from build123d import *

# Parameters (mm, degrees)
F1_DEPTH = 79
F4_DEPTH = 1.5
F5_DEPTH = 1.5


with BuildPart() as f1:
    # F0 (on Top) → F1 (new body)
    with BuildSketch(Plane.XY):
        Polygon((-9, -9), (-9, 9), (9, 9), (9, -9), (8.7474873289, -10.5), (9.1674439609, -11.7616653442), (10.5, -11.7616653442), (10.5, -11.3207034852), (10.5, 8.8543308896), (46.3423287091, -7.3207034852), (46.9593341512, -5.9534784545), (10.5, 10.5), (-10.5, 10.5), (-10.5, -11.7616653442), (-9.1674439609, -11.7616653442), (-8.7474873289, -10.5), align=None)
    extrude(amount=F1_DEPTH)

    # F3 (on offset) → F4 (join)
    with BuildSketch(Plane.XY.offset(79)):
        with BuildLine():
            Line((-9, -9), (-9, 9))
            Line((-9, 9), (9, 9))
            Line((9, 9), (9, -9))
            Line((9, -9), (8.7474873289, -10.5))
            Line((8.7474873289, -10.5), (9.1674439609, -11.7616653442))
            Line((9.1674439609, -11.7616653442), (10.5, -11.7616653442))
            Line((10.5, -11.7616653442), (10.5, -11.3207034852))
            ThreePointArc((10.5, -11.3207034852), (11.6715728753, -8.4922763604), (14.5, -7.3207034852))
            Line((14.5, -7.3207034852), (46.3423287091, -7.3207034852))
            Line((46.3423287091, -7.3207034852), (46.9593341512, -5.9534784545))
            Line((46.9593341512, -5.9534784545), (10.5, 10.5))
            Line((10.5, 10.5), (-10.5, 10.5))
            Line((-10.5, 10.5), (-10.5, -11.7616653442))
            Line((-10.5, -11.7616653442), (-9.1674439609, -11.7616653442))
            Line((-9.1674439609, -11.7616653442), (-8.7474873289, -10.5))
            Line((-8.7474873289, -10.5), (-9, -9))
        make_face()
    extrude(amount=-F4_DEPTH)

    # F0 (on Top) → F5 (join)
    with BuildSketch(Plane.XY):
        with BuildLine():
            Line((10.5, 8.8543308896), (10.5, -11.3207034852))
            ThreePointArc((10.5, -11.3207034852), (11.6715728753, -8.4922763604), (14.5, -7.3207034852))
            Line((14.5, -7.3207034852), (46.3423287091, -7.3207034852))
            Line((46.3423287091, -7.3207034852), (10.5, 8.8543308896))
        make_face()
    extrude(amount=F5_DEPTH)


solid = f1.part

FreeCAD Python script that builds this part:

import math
import FreeCAD as App
import Part
import Sketcher

doc = App.newDocument("Part")
params = doc.addObject("Spreadsheet::Sheet", "Params")
for row, (alias, value) in enumerate([
    ("sketch1_width", "18 mm"),
    ("sketch1_width2", "21 mm"),
    ("sketch1_length", "40 mm"),
    ("sketch1_length2", "1.5 mm"),
    ("pad1_length", "79 mm"),
    ("sketch2_radius", "4 mm"),
    ("sketch2_width", "18 mm"),
    ("sketch2_width2", "21 mm"),
    ("sketch2_length", "40 mm"),
    ("sketch2_length2", "1.5 mm"),
    ("pad2_length", "1.5 mm"),
    ("sketch3_radius", "4 mm"),
    ("pad3_length", "1.5 mm"),
], start=1):
    params.set(f"A{row}", alias)
    params.set(f"B{row}", "=" + value)
    params.setAlias(f"B{row}", alias)

body = doc.addObject("PartDesign::Body", "Body")

# Sketch on XY plane
sketch1 = doc.addObject("Sketcher::SketchObject", "Sketch")
body.addObject(sketch1)
sketch1.AttachmentSupport = (doc.XY_Plane, [""])
sketch1.MapMode = "FlatFace"
sketch1.addGeometry([
    Part.LineSegment(App.Vector(-9, -9, 0), App.Vector(-9, 9, 0)),  # 0
    Part.LineSegment(App.Vector(-9, 9, 0), App.Vector(9, 9, 0)),  # 1
    Part.LineSegment(App.Vector(9, 9, 0), App.Vector(9, -9, 0)),  # 2
    Part.LineSegment(App.Vector(9, -9, 0), App.Vector(8.747487, -10.5, 0)),  # 3
    Part.LineSegment(App.Vector(8.747487, -10.5, 0), App.Vector(9.167444, -11.761665, 0)),  # 4
    Part.LineSegment(App.Vector(9.167444, -11.761665, 0), App.Vector(10.5, -11.761665, 0)),  # 5
    Part.LineSegment(App.Vector(10.5, -11.761665, 0), App.Vector(10.5, 8.854331, 0)),  # 6
    Part.LineSegment(App.Vector(10.5, 8.854331, 0), App.Vector(46.342329, -7.320703, 0)),  # 7
    Part.LineSegment(App.Vector(46.342329, -7.320703, 0), App.Vector(46.959334, -5.953478, 0)),  # 8
    Part.LineSegment(App.Vector(46.959334, -5.953478, 0), App.Vector(10.5, 10.5, 0)),  # 9
    Part.LineSegment(App.Vector(10.5, 10.5, 0), App.Vector(-10.5, 10.5, 0)),  # 10
    Part.LineSegment(App.Vector(-10.5, 10.5, 0), App.Vector(-10.5, -11.761665, 0)),  # 11
    Part.LineSegment(App.Vector(-10.5, -11.761665, 0), App.Vector(-9.167444, -11.761665, 0)),  # 12
    Part.LineSegment(App.Vector(-9.167444, -11.761665, 0), App.Vector(-8.747487, -10.5, 0)),  # 13
    Part.LineSegment(App.Vector(-8.747487, -10.5, 0), App.Vector(-9, -9, 0)),  # 14
], False)
sketch1.addConstraint([
    Sketcher.Constraint("Coincident", 0, 2, 1, 1),
    Sketcher.Constraint("Coincident", 1, 2, 2, 1),
    Sketcher.Constraint("Coincident", 2, 2, 3, 1),
    Sketcher.Constraint("Coincident", 3, 2, 4, 1),
    Sketcher.Constraint("Coincident", 4, 2, 5, 1),
    Sketcher.Constraint("Coincident", 5, 2, 6, 1),
    Sketcher.Constraint("Coincident", 6, 2, 7, 1),
    Sketcher.Constraint("Coincident", 7, 2, 8, 1),
    Sketcher.Constraint("Coincident", 8, 2, 9, 1),
    Sketcher.Constraint("Coincident", 9, 2, 10, 1),
    Sketcher.Constraint("Coincident", 10, 2, 11, 1),
    Sketcher.Constraint("Coincident", 11, 2, 12, 1),
    Sketcher.Constraint("Coincident", 12, 2, 13, 1),
    Sketcher.Constraint("Coincident", 13, 2, 14, 1),
    Sketcher.Constraint("Coincident", 14, 2, 0, 1),
    Sketcher.Constraint("Vertical", 0),
    Sketcher.Constraint("Horizontal", 1),
    Sketcher.Constraint("Vertical", 2),
    Sketcher.Constraint("Horizontal", 5),
    Sketcher.Constraint("Vertical", 6),
    Sketcher.Constraint("Horizontal", 10),
    Sketcher.Constraint("Vertical", 11),
    Sketcher.Constraint("Horizontal", 12),
    Sketcher.Constraint("Symmetric", 0, 2, 2, 2, -1, 1),
    Sketcher.Constraint("Symmetric", 5, 2, 11, 2, -2),
    Sketcher.Constraint("Symmetric", 3, 2, 13, 2, -2),
    Sketcher.Constraint("Perpendicular", 7, 8),
    Sketcher.Constraint("Perpendicular", 8, 9),
    Sketcher.Constraint("Horizontal", 2, 2, 14, 2),
    Sketcher.Constraint("Vertical", 6, 2, 9, 2),
    Sketcher.Constraint("Equal", 5, 12),
    Sketcher.Constraint("Equal", 1, 0),
    Sketcher.Constraint("DistanceX", 1, 1, 1, 2, 18.0),
    Sketcher.Constraint("DistanceX", 10, 2, 10, 1, 21.0),
    Sketcher.Constraint("Distance", 9, 40.0),
    Sketcher.Constraint("DistanceY", 3, 2, 9, 2, 21.0),
    Sketcher.Constraint("Distance", 8, 1.5),
    Sketcher.Constraint("DistanceY", 3, 2, -1, 1, 10.5),
    Sketcher.Constraint("DistanceX", 5, 1, 5, 2, 1.332556),
    Sketcher.Constraint("DistanceY", 6, 1, 6, 2, 20.615996),
    Sketcher.Constraint("DistanceY", 11, 2, 11, 1, 22.261665),
    Sketcher.Constraint("DistanceX", 3, 2, 7, 2, 37.594841),
])
sketch1.setExpression("Constraints[32]", "Params.sketch1_width")
sketch1.setExpression("Constraints[33]", "Params.sketch1_width2")
sketch1.setExpression("Constraints[34]", "Params.sketch1_length")
sketch1.setExpression("Constraints[36]", "Params.sketch1_length2")
pad1 = doc.addObject("PartDesign::Pad", "Pad")
body.addObject(pad1)
pad1.Profile = sketch1
pad1.setExpression("Length", "Params.pad1_length")

# Sketch on XY plane
sketch2 = doc.addObject("Sketcher::SketchObject", "Sketch001")
body.addObject(sketch2)
sketch2.AttachmentSupport = (doc.XY_Plane, [""])
sketch2.MapMode = "FlatFace"
sketch2.AttachmentOffset = App.Placement(App.Vector(0, 0, 79), App.Rotation())
sketch2.addGeometry([
    Part.LineSegment(App.Vector(-9, -9, 0), App.Vector(-9, 9, 0)),  # 0
    Part.LineSegment(App.Vector(-9, 9, 0), App.Vector(9, 9, 0)),  # 1
    Part.LineSegment(App.Vector(9, 9, 0), App.Vector(9, -9, 0)),  # 2
    Part.LineSegment(App.Vector(9, -9, 0), App.Vector(8.747487, -10.5, 0)),  # 3
    Part.LineSegment(App.Vector(8.747487, -10.5, 0), App.Vector(9.167444, -11.761665, 0)),  # 4
    Part.LineSegment(App.Vector(9.167444, -11.761665, 0), App.Vector(10.5, -11.761665, 0)),  # 5
    Part.LineSegment(App.Vector(10.5, -11.761665, 0), App.Vector(10.5, -11.320703, 0)),  # 6
    Part.ArcOfCircle(Part.Circle(App.Vector(14.5, -11.320703, 0), App.Vector(0, 0, 1), 4), math.radians(90), math.radians(180)),  # 7
    Part.LineSegment(App.Vector(14.5, -7.320703, 0), App.Vector(46.342329, -7.320703, 0)),  # 8
    Part.LineSegment(App.Vector(46.342329, -7.320703, 0), App.Vector(46.959334, -5.953478, 0)),  # 9
    Part.LineSegment(App.Vector(46.959334, -5.953478, 0), App.Vector(10.5, 10.5, 0)),  # 10
    Part.LineSegment(App.Vector(10.5, 10.5, 0), App.Vector(-10.5, 10.5, 0)),  # 11
    Part.LineSegment(App.Vector(-10.5, 10.5, 0), App.Vector(-10.5, -11.761665, 0)),  # 12
    Part.LineSegment(App.Vector(-10.5, -11.761665, 0), App.Vector(-9.167444, -11.761665, 0)),  # 13
    Part.LineSegment(App.Vector(-9.167444, -11.761665, 0), App.Vector(-8.747487, -10.5, 0)),  # 14
    Part.LineSegment(App.Vector(-8.747487, -10.5, 0), App.Vector(-9, -9, 0)),  # 15
], False)
sketch2.addConstraint([
    Sketcher.Constraint("Coincident", 0, 2, 1, 1),
    Sketcher.Constraint("Coincident", 1, 2, 2, 1),
    Sketcher.Constraint("Coincident", 2, 2, 3, 1),
    Sketcher.Constraint("Coincident", 3, 2, 4, 1),
    Sketcher.Constraint("Coincident", 4, 2, 5, 1),
    Sketcher.Constraint("Coincident", 5, 2, 6, 1),
    Sketcher.Constraint("Tangent", 6, 2, 7, 2),
    Sketcher.Constraint("Tangent", 7, 1, 8, 1),
    Sketcher.Constraint("Coincident", 8, 2, 9, 1),
    Sketcher.Constraint("Coincident", 9, 2, 10, 1),
    Sketcher.Constraint("Coincident", 10, 2, 11, 1),
    Sketcher.Constraint("Coincident", 11, 2, 12, 1),
    Sketcher.Constraint("Coincident", 12, 2, 13, 1),
    Sketcher.Constraint("Coincident", 13, 2, 14, 1),
    Sketcher.Constraint("Coincident", 14, 2, 15, 1),
    Sketcher.Constraint("Coincident", 15, 2, 0, 1),
    Sketcher.Constraint("Vertical", 0),
    Sketcher.Constraint("Horizontal", 1),
    Sketcher.Constraint("Vertical", 2),
    Sketcher.Constraint("Horizontal", 5),
    Sketcher.Constraint("Vertical", 6),
    Sketcher.Constraint("Horizontal", 8),
    Sketcher.Constraint("Horizontal", 11),
    Sketcher.Constraint("Vertical", 12),
    Sketcher.Constraint("Horizontal", 13),
    Sketcher.Constraint("Symmetric", 0, 2, 2, 2, -1, 1),
    Sketcher.Constraint("Symmetric", 5, 2, 12, 2, -2),
    Sketcher.Constraint("Symmetric", 3, 2, 14, 2, -2),
    Sketcher.Constraint("Perpendicular", 9, 10),
    Sketcher.Constraint("Horizontal", 2, 2, 15, 2),
    Sketcher.Constraint("Vertical", 6, 2, 10, 2),
    Sketcher.Constraint("Equal", 5, 13),
    Sketcher.Constraint("Equal", 1, 0),
    Sketcher.Constraint("Radius", 7, 4.0),
    Sketcher.Constraint("DistanceX", 1, 1, 1, 2, 18.0),
    Sketcher.Constraint("DistanceX", 11, 2, 11, 1, 21.0),
    Sketcher.Constraint("Distance", 10, 40.0),
    Sketcher.Constraint("DistanceY", 3, 2, 10, 2, 21.0),
    Sketcher.Constraint("Distance", 9, 1.5),
    Sketcher.Constraint("DistanceY", 3, 2, -1, 1, 10.5),
    Sketcher.Constraint("DistanceX", 8, 1, 8, 2, 31.842329),
    Sketcher.Constraint("DistanceY", 6, 1, 6, 2, 0.440962),
    Sketcher.Constraint("DistanceX", 5, 1, 5, 2, 1.332556),
    Sketcher.Constraint("DistanceX", 13, 2, 3, 2, 17.914931),
])
sketch2.setExpression("Constraints[33]", "Params.sketch2_radius")
sketch2.setExpression("Constraints[34]", "Params.sketch2_width")
sketch2.setExpression("Constraints[35]", "Params.sketch2_width2")
sketch2.setExpression("Constraints[36]", "Params.sketch2_length")
sketch2.setExpression("Constraints[38]", "Params.sketch2_length2")
pad2 = doc.addObject("PartDesign::Pad", "Pad001")
body.addObject(pad2)
pad2.Profile = sketch2
pad2.setExpression("Length", "Params.pad2_length")
pad2.Reversed = True

# Sketch on XY plane
sketch3 = doc.addObject("Sketcher::SketchObject", "Sketch002")
body.addObject(sketch3)
sketch3.AttachmentSupport = (doc.XY_Plane, [""])
sketch3.MapMode = "FlatFace"
sketch3.addGeometry([
    Part.LineSegment(App.Vector(10.5, 8.854331, 0), App.Vector(10.5, -11.320703, 0)),
    Part.ArcOfCircle(Part.Circle(App.Vector(14.5, -11.320703, 0), App.Vector(0, 0, 1), 4), math.radians(90), math.radians(180)),
    Part.LineSegment(App.Vector(14.5, -7.320703, 0), App.Vector(46.342329, -7.320703, 0)),
    Part.LineSegment(App.Vector(46.342329, -7.320703, 0), App.Vector(10.5, 8.854331, 0)),
], False)
sketch3.addConstraint([
    Sketcher.Constraint("Tangent", 0, 2, 1, 2),
    Sketcher.Constraint("Tangent", 1, 1, 2, 1),
    Sketcher.Constraint("Coincident", 2, 2, 3, 1),
    Sketcher.Constraint("Coincident", 3, 2, 0, 1),
    Sketcher.Constraint("Vertical", 0),
    Sketcher.Constraint("Horizontal", 2),
    Sketcher.Constraint("Radius", 1, 4.0),
    Sketcher.Constraint("DistanceX", -1, 1, 1, 3, 14.5),
    Sketcher.Constraint("DistanceX", 2, 1, 2, 2, 31.842329),
    Sketcher.Constraint("DistanceY", 0, 2, 0, 1, 20.175034),
    Sketcher.Constraint("DistanceY", -1, 1, 3, 2, 8.854331),
])
sketch3.setExpression("Constraints[6]", "Params.sketch3_radius")
pad3 = doc.addObject("PartDesign::Pad", "Pad002")
body.addObject(pad3)
pad3.Profile = sketch3
pad3.setExpression("Length", "Params.pad3_length")

doc.recompute()
